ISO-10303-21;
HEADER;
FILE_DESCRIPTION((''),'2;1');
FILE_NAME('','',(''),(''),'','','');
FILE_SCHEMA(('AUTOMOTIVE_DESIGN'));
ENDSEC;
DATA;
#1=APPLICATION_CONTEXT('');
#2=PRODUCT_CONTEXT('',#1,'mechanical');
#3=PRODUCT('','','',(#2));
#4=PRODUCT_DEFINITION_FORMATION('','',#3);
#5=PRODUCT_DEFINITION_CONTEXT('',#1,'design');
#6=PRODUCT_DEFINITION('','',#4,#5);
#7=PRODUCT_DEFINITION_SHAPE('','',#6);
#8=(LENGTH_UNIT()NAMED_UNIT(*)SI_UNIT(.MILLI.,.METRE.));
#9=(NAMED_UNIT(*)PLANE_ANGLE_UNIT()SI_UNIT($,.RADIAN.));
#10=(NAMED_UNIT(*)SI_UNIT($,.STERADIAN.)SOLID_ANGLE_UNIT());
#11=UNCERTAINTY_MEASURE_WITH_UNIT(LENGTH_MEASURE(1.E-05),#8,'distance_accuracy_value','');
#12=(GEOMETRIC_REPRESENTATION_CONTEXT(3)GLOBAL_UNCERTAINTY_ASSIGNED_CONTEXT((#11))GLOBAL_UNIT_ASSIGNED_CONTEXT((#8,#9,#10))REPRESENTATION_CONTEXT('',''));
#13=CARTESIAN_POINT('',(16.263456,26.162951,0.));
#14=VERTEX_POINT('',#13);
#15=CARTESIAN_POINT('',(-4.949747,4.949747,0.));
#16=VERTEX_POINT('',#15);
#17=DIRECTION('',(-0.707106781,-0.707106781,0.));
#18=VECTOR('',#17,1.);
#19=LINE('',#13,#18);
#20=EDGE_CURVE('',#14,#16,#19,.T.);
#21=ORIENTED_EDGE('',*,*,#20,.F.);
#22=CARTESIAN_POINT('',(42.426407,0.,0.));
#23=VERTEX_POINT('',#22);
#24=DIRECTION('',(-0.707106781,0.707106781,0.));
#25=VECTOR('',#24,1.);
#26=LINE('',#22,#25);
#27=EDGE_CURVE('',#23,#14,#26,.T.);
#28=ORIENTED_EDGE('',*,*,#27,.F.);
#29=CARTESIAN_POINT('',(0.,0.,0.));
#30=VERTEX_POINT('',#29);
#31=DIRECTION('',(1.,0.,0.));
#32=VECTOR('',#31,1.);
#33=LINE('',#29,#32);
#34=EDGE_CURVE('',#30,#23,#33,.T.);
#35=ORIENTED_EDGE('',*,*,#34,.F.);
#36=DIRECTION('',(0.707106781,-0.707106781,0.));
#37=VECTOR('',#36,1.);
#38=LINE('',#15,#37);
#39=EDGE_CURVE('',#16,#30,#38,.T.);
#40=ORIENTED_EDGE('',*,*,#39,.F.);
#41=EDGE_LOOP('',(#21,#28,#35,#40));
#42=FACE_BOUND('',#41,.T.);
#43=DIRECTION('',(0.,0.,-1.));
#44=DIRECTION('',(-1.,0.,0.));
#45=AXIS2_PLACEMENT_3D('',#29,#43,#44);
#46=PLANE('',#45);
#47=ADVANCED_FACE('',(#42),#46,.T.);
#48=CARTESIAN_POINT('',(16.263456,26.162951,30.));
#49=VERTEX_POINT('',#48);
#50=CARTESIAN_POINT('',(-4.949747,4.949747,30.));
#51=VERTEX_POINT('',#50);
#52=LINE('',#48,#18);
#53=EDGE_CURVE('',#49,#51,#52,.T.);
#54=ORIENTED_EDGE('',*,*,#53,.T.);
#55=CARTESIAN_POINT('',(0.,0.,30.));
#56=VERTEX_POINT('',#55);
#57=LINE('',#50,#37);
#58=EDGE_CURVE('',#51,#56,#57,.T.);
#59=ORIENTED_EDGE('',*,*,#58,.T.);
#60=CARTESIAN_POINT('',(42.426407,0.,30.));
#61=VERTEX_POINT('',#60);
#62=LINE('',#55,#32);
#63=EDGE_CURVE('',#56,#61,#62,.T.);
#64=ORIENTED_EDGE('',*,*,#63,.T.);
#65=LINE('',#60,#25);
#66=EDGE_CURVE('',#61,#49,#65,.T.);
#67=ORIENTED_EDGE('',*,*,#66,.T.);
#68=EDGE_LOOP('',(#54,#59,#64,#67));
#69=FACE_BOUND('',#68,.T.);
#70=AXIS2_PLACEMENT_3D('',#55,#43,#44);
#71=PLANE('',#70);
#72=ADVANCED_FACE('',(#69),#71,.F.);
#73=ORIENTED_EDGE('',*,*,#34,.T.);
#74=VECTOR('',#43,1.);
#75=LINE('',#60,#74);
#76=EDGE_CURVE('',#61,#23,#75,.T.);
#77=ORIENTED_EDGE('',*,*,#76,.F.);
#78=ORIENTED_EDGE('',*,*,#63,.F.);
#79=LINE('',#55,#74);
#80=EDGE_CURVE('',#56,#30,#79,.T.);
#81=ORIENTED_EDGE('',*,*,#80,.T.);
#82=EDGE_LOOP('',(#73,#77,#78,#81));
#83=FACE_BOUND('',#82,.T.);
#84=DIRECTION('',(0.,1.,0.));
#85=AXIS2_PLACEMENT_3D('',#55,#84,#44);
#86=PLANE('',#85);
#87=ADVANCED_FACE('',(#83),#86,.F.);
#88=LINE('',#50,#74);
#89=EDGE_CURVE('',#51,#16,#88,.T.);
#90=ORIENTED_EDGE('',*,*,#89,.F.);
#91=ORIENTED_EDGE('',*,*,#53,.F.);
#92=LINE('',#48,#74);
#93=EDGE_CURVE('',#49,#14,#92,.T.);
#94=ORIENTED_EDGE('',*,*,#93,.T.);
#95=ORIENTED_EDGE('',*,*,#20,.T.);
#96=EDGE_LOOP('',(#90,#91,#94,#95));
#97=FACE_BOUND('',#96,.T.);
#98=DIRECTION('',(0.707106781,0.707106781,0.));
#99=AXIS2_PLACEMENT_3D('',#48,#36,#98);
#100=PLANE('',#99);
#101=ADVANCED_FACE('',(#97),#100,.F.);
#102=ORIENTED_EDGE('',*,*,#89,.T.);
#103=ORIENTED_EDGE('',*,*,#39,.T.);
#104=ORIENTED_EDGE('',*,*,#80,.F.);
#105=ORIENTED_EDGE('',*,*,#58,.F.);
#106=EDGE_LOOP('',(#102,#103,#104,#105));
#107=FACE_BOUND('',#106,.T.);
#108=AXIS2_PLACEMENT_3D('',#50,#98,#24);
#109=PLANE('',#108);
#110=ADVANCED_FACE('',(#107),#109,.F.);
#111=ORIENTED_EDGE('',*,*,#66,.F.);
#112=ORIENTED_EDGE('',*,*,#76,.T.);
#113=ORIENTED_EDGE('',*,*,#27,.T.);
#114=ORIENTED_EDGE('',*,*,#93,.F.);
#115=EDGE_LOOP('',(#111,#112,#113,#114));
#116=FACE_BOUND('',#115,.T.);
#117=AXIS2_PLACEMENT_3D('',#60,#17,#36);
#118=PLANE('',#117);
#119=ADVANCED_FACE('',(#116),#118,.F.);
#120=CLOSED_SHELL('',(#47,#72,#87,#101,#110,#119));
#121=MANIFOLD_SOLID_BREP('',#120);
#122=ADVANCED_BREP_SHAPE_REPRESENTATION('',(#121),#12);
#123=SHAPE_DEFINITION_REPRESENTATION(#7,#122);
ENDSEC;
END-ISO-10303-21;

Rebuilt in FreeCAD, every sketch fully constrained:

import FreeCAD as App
import Part
import Sketcher
from FreeCAD import Vector
Q = App.Units.Quantity


def add_polygon(sketch, points):
    """Adds a closed chain of lines whose ends are joined by coincident constraints."""
    first, n = sketch.GeometryCount, len(points)
    for a, b in zip(points, points[1:] + points[:1]):
        sketch.addGeometry(Part.LineSegment(App.Vector(*a, 0), App.Vector(*b, 0)), False)
    for i in range(n):
        sketch.addConstraint(Sketcher.Constraint("Coincident", first + i, 2, first + (i + 1) % n, 1))

doc = App.newDocument("Part")
body = doc.addObject("PartDesign::Body", "Body")

# Sketch on XY plane
sketch1 = body.newObject("Sketcher::SketchObject", "Sketch")
sketch1.AttachmentSupport = (doc.getObject("XY_Plane"), [""])
sketch1.MapMode = "FlatFace"
add_polygon(sketch1, [(0, 0), (42, 0), (16, 26), (-5, 5)])  # lines 0-3
sketch1.addConstraint(Sketcher.Constraint("Horizontal", 0))
sketch1.addConstraint(Sketcher.Constraint("Coincident", 3, 2, -1, 1))
sketch1.addConstraint(Sketcher.Constraint("Perpendicular", 1, 2))
sketch1.addConstraint(Sketcher.Constraint("Perpendicular", 2, 3))
sketch1.addConstraint(Sketcher.Constraint("Angle", 1, Q("135 deg")))
sketch1.addConstraint(Sketcher.Constraint("Distance", 1, Q("37 mm")))
sketch1.addConstraint(Sketcher.Constraint("Distance", 2, Q("30 mm")))
pad1 = body.newObject("PartDesign::Pad", "Pad")
pad1.Profile = sketch1
pad1.Length = 30

doc.recompute()
